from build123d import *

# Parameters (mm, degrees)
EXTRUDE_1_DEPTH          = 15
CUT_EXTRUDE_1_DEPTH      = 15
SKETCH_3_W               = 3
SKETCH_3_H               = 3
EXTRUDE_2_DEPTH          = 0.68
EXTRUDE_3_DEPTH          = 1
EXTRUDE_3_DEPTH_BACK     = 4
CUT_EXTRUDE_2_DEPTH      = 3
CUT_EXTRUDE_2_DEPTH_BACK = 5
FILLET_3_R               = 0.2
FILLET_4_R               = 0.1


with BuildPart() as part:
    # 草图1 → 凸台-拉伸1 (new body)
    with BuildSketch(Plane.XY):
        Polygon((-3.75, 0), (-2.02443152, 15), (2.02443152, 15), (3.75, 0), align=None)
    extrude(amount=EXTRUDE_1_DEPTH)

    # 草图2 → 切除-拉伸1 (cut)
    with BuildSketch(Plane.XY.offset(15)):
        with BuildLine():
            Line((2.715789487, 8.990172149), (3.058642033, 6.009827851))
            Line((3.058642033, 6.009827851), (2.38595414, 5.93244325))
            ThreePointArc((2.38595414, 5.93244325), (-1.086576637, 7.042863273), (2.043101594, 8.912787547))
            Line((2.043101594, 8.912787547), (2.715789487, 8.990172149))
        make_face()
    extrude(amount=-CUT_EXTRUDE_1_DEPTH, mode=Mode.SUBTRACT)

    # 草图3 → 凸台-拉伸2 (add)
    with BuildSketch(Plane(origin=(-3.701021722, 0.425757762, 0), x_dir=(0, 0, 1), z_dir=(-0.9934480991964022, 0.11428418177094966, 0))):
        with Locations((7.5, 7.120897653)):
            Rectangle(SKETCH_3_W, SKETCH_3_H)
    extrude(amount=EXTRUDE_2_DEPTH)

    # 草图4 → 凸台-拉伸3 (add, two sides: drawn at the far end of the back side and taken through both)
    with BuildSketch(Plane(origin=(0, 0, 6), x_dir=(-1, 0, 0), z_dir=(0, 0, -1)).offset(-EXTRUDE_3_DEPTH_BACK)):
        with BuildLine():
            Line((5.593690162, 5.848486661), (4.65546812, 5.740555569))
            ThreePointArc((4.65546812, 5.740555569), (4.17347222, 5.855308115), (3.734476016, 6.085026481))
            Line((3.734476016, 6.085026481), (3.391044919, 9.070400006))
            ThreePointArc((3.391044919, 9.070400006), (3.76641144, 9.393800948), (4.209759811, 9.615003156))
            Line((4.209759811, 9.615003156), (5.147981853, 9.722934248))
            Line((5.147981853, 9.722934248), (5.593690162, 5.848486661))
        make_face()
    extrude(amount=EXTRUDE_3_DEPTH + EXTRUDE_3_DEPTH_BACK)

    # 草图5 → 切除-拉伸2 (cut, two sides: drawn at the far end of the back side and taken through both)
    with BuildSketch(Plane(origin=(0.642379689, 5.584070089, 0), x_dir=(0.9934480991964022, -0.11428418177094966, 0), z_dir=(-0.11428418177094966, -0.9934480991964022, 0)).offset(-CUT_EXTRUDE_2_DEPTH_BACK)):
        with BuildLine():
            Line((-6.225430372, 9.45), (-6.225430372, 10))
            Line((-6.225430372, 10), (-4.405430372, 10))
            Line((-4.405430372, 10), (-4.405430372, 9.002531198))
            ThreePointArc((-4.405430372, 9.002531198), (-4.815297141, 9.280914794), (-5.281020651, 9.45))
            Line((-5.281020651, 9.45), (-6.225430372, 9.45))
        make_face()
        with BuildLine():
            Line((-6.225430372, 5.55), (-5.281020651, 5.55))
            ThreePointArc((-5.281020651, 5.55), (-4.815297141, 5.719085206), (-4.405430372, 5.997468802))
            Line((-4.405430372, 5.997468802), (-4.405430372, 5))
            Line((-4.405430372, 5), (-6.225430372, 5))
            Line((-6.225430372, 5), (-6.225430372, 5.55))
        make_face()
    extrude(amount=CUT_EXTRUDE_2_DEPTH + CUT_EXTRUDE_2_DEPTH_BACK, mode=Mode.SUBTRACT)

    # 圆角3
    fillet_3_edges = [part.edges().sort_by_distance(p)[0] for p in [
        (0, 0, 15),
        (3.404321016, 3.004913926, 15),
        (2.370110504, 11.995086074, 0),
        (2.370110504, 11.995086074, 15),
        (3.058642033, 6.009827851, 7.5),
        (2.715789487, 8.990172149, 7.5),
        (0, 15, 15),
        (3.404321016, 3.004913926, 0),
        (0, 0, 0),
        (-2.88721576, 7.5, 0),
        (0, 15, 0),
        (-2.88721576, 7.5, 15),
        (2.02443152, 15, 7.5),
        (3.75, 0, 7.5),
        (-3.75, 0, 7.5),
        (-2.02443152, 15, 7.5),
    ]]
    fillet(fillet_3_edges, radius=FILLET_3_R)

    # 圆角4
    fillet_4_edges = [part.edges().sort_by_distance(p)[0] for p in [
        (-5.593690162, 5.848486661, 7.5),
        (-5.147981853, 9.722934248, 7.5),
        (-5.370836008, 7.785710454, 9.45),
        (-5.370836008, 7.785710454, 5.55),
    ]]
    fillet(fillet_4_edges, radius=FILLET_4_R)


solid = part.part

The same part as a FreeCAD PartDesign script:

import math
import FreeCAD as App
import Part
import Sketcher

V = App.Vector
Q = App.Units.Quantity


def edges_at(feature, points):
    """Names of the edges that pass closest to the given points."""
    edges = feature.Shape.Edges
    near = lambda p: min(range(len(edges)), key=lambda i: edges[i].distToShape(Part.Vertex(*p))[0])
    return sorted({f"Edge{near(p) + 1}" for p in points})


def add_polygon(sketch, points):
    """Adds a closed chain of lines whose ends are joined by coincident constraints."""
    first, n = sketch.GeometryCount, len(points)
    for a, b in zip(points, points[1:] + points[:1]):
        sketch.addGeometry(Part.LineSegment(App.Vector(*a, 0), App.Vector(*b, 0)), False)
    for i in range(n):
        sketch.addConstraint(Sketcher.Constraint("Coincident", first + i, 2, first + (i + 1) % n, 1))

doc = App.newDocument("Part")
body = doc.addObject("PartDesign::Body", "Body")

sketch1 = body.newObject("Sketcher::SketchObject", "Sketch")
sketch1.AttachmentSupport = (doc.getObject("XY_Plane"), [""])
sketch1.MapMode = "FlatFace"
add_polygon(sketch1, [(-2.024432, 15), (-3.75, 0), (3.75, 0), (2.024432, 15)])
sketch1.addConstraint(Sketcher.Constraint("Horizontal", 1))
sketch1.addConstraint(Sketcher.Constraint("Horizontal", 3))
sketch1.addConstraint(Sketcher.Constraint("Symmetric", 0, 2, 1, 2, -1, 1))
sketch1.addConstraint(Sketcher.Constraint("Equal", 0, 2))
sketch1.addConstraint(Sketcher.Constraint("DistanceX", 1, 1, 1, 2, Q("7.5 mm")))
sketch1.addConstraint(Sketcher.Constraint("DistanceY", -1, 1, 2, 2, Q("15 mm")))
sketch1.addConstraint(Sketcher.Constraint("DistanceX", 3, 2, 3, 1, Q("4.048863 mm")))
pad1 = body.newObject("PartDesign::Pad", "Pad")
pad1.Profile = sketch1
pad1.Length = 15

sketch2 = body.newObject("Sketcher::SketchObject", "Sketch001")
sketch2.AttachmentSupport = (doc.getObject("XY_Plane"), [""])
sketch2.MapMode = "FlatFace"
sketch2.AttachmentOffset = App.Placement(V(0, 0, 15), App.Rotation())
sketch2.addGeometry(Part.LineSegment(V(3.058642, 6.009828, 0), V(2.715789, 8.990172, 0)), False)
sketch2.addGeometry(Part.LineSegment(V(2.715789, 8.990172, 0), V(2.043102, 8.912788, 0)), False)
sketch2.addGeometry(Part.ArcOfCircle(Part.Circle(V(0.90032, 7.271432, 0), V(0, 0, 1), 2), math.radians(55.152717), math.radians(317.971962)), False)
sketch2.addGeometry(Part.LineSegment(V(2.385954, 5.932443, 0), V(3.058642, 6.009828, 0)), False)
sketch2.addConstraint(Sketcher.Constraint("Coincident", 0, 2, 1, 1))
sketch2.addConstraint(Sketcher.Constraint("Coincident", 1, 2, 2, 1))
sketch2.addConstraint(Sketcher.Constraint("Coincident", 2, 2, 3, 1))
sketch2.addConstraint(Sketcher.Constraint("Coincident", 3, 2, 0, 1))
sketch2.addConstraint(Sketcher.Constraint("Perpendicular", 0, 1))
sketch2.addConstraint(Sketcher.Constraint("Parallel", 1, 3))
sketch2.addConstraint(Sketcher.Constraint("Equal", 1, 3))
sketch2.addConstraint(Sketcher.Constraint("Radius", 2, Q("2 mm")))
sketch2.addConstraint(Sketcher.Constraint("Distance", 0, Q("3 mm")))
sketch2.addConstraint(Sketcher.Constraint("DistanceX", -1, 1, 1, 2, Q("2.043102 mm")))
sketch2.addConstraint(Sketcher.Constraint("DistanceX", -1, 1, 2, 3, Q("0.90032 mm")))
sketch2.addConstraint(Sketcher.Constraint("DistanceY", -1, 1, 2, 3, Q("7.271432 mm")))
sketch2.addConstraint(Sketcher.Constraint("DistanceX", -1, 1, 0, 2, Q("2.715789 mm")))
pocket1 = body.newObject("PartDesign::Pocket", "Pocket")
pocket1.Profile = sketch2
pocket1.Length = 15

sketch3 = body.newObject("Sketcher::SketchObject", "Sketch002")
sketch3.Placement = App.Placement(V(-3.701022, 0.425758, 0), App.Rotation(V(0, 0, 1), V(0.114284182, 0.993448099, 0), V(-0.993448099, 0.114284182, 0), "ZXY"))
add_polygon(sketch3, [(6, 8.620898), (6, 5.620898), (9, 5.620898), (9, 8.620898)])
sketch3.addConstraint(Sketcher.Constraint("Vertical", 0))
sketch3.addConstraint(Sketcher.Constraint("Horizontal", 1))
sketch3.addConstraint(Sketcher.Constraint("Vertical", 2))
sketch3.addConstraint(Sketcher.Constraint("Horizontal", 3))
sketch3.addConstraint(Sketcher.Constraint("Equal", 3, 0))
sketch3.addConstraint(Sketcher.Constraint("DistanceX", 1, 1, 1, 2, Q("3 mm")))
sketch3.addConstraint(Sketcher.Constraint("DistanceX", -1, 1, 0, 2, Q("6 mm")))
sketch3.addConstraint(Sketcher.Constraint("DistanceY", -1, 1, 0, 2, Q("5.620898 mm")))
pad2 = body.newObject("PartDesign::Pad", "Pad001")
pad2.Profile = sketch3
pad2.Length = 0.68

sketch4 = body.newObject("Sketcher::SketchObject", "Sketch003")
sketch4.AttachmentSupport = (doc.getObject("XY_Plane"), [""])
sketch4.MapMode = "FlatFace"
sketch4.AttachmentOffset = App.Placement(V(0, 0, 6), App.Rotation())
sketch4.addGeometry(Part.LineSegment(V(-4.655468, 5.740556, 0), V(-5.59369, 5.848487, 0)), False)
sketch4.addGeometry(Part.LineSegment(V(-5.59369, 5.848487, 0), V(-5.147982, 9.722934, 0)), False)
sketch4.addGeometry(Part.LineSegment(V(-5.147982, 9.722934, 0), V(-4.20976, 9.615003, 0)), False)
sketch4.addGeometry(Part.ArcOfCircle(Part.Circle(V(-4.874112, 7.728568, 0), V(0, 0, 1), 2), math.radians(42.137788), math.radians(70.599092)), False)
sketch4.addGeometry(Part.LineSegment(V(-3.391045, 9.0704, 0), V(-3.734476, 6.085026, 0)), False)
sketch4.addGeometry(Part.ArcOfCircle(Part.Circle(V(-4.874112, 7.728568, 0), V(0, 0, 1), 2), math.radians(-83.723771), math.radians(-55.262467)), False)
sketch4.addConstraint(Sketcher.Constraint("Coincident", 0, 2, 1, 1))
sketch4.addConstraint(Sketcher.Constraint("Coincident", 1, 2, 2, 1))
sketch4.addConstraint(Sketcher.Constraint("Coincident", 2, 2, 3, 2))
sketch4.addConstraint(Sketcher.Constraint("Coincident", 3, 1, 4, 1))
sketch4.addConstraint(Sketcher.Constraint("Coincident", 4, 2, 5, 2))
sketch4.addConstraint(Sketcher.Constraint("Coincident", 5, 1, 0, 1))
sketch4.addConstraint(Sketcher.Constraint("Coincident", 5, 3, 3, 3))
sketch4.addConstraint(Sketcher.Constraint("Equal", 3, 5))
sketch4.addConstraint(Sketcher.Constraint("Perpendicular", 0, 1))
sketch4.addConstraint(Sketcher.Constraint("Perpendicular", 1, 2))
sketch4.addConstraint(Sketcher.Constraint("Perpendicular", 2, 4))
sketch4.addConstraint(Sketcher.Constraint("Equal", 0, 2))
sketch4.addConstraint(Sketcher.Constraint("Radius", 3, Q("2 mm")))
sketch4.addConstraint(Sketcher.Constraint("Distance", 1, Q("3.9 mm")))
sketch4.addConstraint(Sketcher.Constraint("DistanceY", -1, 1, 3, 1, Q("9.0704 mm")))
sketch4.addConstraint(Sketcher.Constraint("Distance", 0, Q("0.94441 mm")))
sketch4.addConstraint(Sketcher.Constraint("DistanceX", 3, 3, -1, 1, Q("4.874112 mm")))
sketch4.addConstraint(Sketcher.Constraint("DistanceY", -1, 1, 3, 3, Q("7.728568 mm")))
sketch4.addConstraint(Sketcher.Constraint("DistanceX", 0, 2, -1, 1, Q("5.59369 mm")))
pad3 = body.newObject("PartDesign::Pad", "Pad002")
pad3.Profile = sketch4
pad3.Type = "TwoLengths"
pad3.Length = 1
pad3.Length2 = 4
pad3.Reversed = True

sketch5 = body.newObject("Sketcher::SketchObject", "Sketch004")
sketch5.Placement = App.Placement(V(0.64238, 5.58407, 0), App.Rotation(V(0.993448099, -0.114284182, 0), V(0, 0, 1), V(-0.114284182, -0.993448099, 0), "ZXY"))
sketch5.addGeometry(Part.LineSegment(V(-6.22543, 10, 0), V(-6.22543, 9.45, 0)), False)
sketch5.addGeometry(Part.LineSegment(V(-6.22543, 9.45, 0), V(-5.281021, 9.45, 0)), False)
sketch5.addGeometry(Part.ArcOfCircle(Part.Circle(V(-5.72543, 7.5, 0), V(0, 0, 1), 2), math.radians(48.700127), math.radians(77.161432)), False)
sketch5.addGeometry(Part.LineSegment(V(-4.40543, 9.002531, 0), V(-4.40543, 10, 0)), False)
sketch5.addGeometry(Part.LineSegment(V(-4.40543, 10, 0), V(-6.22543, 10, 0)), False)
sketch5.addGeometry(Part.LineSegment(V(-5.281021, 5.55, 0), V(-6.22543, 5.55, 0)), False)
sketch5.addGeometry(Part.LineSegment(V(-6.22543, 5.55, 0), V(-6.22543, 5, 0)), False)
sketch5.addGeometry(Part.LineSegment(V(-6.22543, 5, 0), V(-4.40543, 5, 0)), False)
sketch5.addGeometry(Part.LineSegment(V(-4.40543, 5, 0), V(-4.40543, 5.997469, 0)), False)
sketch5.addGeometry(Part.ArcOfCircle(Part.Circle(V(-5.72543, 7.5, 0), V(0, 0, 1), 2), math.radians(-77.161432), math.radians(-48.700127)), False)
sketch5.addConstraint(Sketcher.Constraint("Coincident", 0, 2, 1, 1))
sketch5.addConstraint(Sketcher.Constraint("Coincident", 1, 2, 2, 2))
sketch5.addConstraint(Sketcher.Constraint("Coincident", 2, 1, 3, 1))
sketch5.addConstraint(Sketcher.Constraint("Coincident", 3, 2, 4, 1))
sketch5.addConstraint(Sketcher.Constraint("Coincident", 4, 2, 0, 1))
sketch5.addConstraint(Sketcher.Constraint("Coincident", 5, 2, 6, 1))
sketch5.addConstraint(Sketcher.Constraint("Coincident", 6, 2, 7, 1))
sketch5.addConstraint(Sketcher.Constraint("Coincident", 7, 2, 8, 1))
sketch5.addConstraint(Sketcher.Constraint("Coincident", 8, 2, 9, 2))
sketch5.addConstraint(Sketcher.Constraint("Coincident", 9, 1, 5, 1))
sketch5.addConstraint(Sketcher.Constraint("Vertical", 0))
sketch5.addConstraint(Sketcher.Constraint("Horizontal", 1))
sketch5.addConstraint(Sketcher.Constraint("Vertical", 3))
sketch5.addConstraint(Sketcher.Constraint("Horizontal", 4))
sketch5.addConstraint(Sketcher.Constraint("Horizontal", 5))
sketch5.addConstraint(Sketcher.Constraint("Vertical", 6))
sketch5.addConstraint(Sketcher.Constraint("Horizontal", 7))
sketch5.addConstraint(Sketcher.Constraint("Vertical", 8))
sketch5.addConstraint(Sketcher.Constraint("Coincident", 9, 3, 2, 3))
sketch5.addConstraint(Sketcher.Constraint("Equal", 2, 9))
sketch5.addConstraint(Sketcher.Constraint("Vertical", 4, 2, 5, 2))
sketch5.addConstraint(Sketcher.Constraint("Vertical", 3, 2, 7, 2))
sketch5.addConstraint(Sketcher.Constraint("Vertical", 1, 2, 9, 1))
sketch5.addConstraint(Sketcher.Constraint("Equal", 0, 6))
sketch5.addConstraint(Sketcher.Constraint("Radius", 2, Q("2 mm")))
sketch5.addConstraint(Sketcher.Constraint("DistanceY", -1, 1, 3, 2, Q("10 mm")))
sketch5.addConstraint(Sketcher.Constraint("DistanceY", -1, 1, 6, 2, Q("5 mm")))
sketch5.addConstraint(Sketcher.Constraint("DistanceX", 4, 2, 4, 1, Q("1.82 mm")))
sketch5.addConstraint(Sketcher.Constraint("DistanceY", 0, 2, 0, 1, Q("0.55 mm")))
sketch5.addConstraint(Sketcher.Constraint("DistanceX", 0, 2, 2, 3, Q("0.5 mm")))
sketch5.addConstraint(Sketcher.Constraint("DistanceX", 2, 3, -1, 1, Q("5.72543 mm")))
pocket2 = body.newObject("PartDesign::Pocket", "Pocket001")
pocket2.Profile = sketch5
pocket2.Type = "ThroughAll"
pocket2.Midplane = True
doc.recompute()

fillet = body.newObject("PartDesign::Fillet", "Fillet")
fillet.Base = (pocket2, edges_at(pocket2, [
    (0, 0, 15),
    (3.404, 3.005, 15),
    (2.37, 11.995, 0),
    (2.37, 11.995, 15),
    (3.059, 6.01, 7.5),
    (2.716, 8.99, 7.5),
    (0, 15, 15),
    (3.404, 3.005, 0),
    (0, 0, 0),
    (-2.887, 7.5, 0),
    (0, 15, 0),
    (-2.887, 7.5, 15),
    (2.024, 15, 7.5),
    (3.75, 0, 7.5),
    (-3.75, 0, 7.5),
    (-2.024, 15, 7.5),
]))
fillet.Radius = 0.2
doc.recompute()

fillet2 = body.newObject("PartDesign::Fillet", "Fillet001")
fillet2.Base = (fillet, edges_at(fillet, [
    (-5.594, 5.848, 7.5),
    (-5.148, 9.723, 7.5),
    (-5.371, 7.786, 9.45),
    (-5.371, 7.786, 5.55),
]))
fillet2.Radius = 0.1

doc.recompute()
